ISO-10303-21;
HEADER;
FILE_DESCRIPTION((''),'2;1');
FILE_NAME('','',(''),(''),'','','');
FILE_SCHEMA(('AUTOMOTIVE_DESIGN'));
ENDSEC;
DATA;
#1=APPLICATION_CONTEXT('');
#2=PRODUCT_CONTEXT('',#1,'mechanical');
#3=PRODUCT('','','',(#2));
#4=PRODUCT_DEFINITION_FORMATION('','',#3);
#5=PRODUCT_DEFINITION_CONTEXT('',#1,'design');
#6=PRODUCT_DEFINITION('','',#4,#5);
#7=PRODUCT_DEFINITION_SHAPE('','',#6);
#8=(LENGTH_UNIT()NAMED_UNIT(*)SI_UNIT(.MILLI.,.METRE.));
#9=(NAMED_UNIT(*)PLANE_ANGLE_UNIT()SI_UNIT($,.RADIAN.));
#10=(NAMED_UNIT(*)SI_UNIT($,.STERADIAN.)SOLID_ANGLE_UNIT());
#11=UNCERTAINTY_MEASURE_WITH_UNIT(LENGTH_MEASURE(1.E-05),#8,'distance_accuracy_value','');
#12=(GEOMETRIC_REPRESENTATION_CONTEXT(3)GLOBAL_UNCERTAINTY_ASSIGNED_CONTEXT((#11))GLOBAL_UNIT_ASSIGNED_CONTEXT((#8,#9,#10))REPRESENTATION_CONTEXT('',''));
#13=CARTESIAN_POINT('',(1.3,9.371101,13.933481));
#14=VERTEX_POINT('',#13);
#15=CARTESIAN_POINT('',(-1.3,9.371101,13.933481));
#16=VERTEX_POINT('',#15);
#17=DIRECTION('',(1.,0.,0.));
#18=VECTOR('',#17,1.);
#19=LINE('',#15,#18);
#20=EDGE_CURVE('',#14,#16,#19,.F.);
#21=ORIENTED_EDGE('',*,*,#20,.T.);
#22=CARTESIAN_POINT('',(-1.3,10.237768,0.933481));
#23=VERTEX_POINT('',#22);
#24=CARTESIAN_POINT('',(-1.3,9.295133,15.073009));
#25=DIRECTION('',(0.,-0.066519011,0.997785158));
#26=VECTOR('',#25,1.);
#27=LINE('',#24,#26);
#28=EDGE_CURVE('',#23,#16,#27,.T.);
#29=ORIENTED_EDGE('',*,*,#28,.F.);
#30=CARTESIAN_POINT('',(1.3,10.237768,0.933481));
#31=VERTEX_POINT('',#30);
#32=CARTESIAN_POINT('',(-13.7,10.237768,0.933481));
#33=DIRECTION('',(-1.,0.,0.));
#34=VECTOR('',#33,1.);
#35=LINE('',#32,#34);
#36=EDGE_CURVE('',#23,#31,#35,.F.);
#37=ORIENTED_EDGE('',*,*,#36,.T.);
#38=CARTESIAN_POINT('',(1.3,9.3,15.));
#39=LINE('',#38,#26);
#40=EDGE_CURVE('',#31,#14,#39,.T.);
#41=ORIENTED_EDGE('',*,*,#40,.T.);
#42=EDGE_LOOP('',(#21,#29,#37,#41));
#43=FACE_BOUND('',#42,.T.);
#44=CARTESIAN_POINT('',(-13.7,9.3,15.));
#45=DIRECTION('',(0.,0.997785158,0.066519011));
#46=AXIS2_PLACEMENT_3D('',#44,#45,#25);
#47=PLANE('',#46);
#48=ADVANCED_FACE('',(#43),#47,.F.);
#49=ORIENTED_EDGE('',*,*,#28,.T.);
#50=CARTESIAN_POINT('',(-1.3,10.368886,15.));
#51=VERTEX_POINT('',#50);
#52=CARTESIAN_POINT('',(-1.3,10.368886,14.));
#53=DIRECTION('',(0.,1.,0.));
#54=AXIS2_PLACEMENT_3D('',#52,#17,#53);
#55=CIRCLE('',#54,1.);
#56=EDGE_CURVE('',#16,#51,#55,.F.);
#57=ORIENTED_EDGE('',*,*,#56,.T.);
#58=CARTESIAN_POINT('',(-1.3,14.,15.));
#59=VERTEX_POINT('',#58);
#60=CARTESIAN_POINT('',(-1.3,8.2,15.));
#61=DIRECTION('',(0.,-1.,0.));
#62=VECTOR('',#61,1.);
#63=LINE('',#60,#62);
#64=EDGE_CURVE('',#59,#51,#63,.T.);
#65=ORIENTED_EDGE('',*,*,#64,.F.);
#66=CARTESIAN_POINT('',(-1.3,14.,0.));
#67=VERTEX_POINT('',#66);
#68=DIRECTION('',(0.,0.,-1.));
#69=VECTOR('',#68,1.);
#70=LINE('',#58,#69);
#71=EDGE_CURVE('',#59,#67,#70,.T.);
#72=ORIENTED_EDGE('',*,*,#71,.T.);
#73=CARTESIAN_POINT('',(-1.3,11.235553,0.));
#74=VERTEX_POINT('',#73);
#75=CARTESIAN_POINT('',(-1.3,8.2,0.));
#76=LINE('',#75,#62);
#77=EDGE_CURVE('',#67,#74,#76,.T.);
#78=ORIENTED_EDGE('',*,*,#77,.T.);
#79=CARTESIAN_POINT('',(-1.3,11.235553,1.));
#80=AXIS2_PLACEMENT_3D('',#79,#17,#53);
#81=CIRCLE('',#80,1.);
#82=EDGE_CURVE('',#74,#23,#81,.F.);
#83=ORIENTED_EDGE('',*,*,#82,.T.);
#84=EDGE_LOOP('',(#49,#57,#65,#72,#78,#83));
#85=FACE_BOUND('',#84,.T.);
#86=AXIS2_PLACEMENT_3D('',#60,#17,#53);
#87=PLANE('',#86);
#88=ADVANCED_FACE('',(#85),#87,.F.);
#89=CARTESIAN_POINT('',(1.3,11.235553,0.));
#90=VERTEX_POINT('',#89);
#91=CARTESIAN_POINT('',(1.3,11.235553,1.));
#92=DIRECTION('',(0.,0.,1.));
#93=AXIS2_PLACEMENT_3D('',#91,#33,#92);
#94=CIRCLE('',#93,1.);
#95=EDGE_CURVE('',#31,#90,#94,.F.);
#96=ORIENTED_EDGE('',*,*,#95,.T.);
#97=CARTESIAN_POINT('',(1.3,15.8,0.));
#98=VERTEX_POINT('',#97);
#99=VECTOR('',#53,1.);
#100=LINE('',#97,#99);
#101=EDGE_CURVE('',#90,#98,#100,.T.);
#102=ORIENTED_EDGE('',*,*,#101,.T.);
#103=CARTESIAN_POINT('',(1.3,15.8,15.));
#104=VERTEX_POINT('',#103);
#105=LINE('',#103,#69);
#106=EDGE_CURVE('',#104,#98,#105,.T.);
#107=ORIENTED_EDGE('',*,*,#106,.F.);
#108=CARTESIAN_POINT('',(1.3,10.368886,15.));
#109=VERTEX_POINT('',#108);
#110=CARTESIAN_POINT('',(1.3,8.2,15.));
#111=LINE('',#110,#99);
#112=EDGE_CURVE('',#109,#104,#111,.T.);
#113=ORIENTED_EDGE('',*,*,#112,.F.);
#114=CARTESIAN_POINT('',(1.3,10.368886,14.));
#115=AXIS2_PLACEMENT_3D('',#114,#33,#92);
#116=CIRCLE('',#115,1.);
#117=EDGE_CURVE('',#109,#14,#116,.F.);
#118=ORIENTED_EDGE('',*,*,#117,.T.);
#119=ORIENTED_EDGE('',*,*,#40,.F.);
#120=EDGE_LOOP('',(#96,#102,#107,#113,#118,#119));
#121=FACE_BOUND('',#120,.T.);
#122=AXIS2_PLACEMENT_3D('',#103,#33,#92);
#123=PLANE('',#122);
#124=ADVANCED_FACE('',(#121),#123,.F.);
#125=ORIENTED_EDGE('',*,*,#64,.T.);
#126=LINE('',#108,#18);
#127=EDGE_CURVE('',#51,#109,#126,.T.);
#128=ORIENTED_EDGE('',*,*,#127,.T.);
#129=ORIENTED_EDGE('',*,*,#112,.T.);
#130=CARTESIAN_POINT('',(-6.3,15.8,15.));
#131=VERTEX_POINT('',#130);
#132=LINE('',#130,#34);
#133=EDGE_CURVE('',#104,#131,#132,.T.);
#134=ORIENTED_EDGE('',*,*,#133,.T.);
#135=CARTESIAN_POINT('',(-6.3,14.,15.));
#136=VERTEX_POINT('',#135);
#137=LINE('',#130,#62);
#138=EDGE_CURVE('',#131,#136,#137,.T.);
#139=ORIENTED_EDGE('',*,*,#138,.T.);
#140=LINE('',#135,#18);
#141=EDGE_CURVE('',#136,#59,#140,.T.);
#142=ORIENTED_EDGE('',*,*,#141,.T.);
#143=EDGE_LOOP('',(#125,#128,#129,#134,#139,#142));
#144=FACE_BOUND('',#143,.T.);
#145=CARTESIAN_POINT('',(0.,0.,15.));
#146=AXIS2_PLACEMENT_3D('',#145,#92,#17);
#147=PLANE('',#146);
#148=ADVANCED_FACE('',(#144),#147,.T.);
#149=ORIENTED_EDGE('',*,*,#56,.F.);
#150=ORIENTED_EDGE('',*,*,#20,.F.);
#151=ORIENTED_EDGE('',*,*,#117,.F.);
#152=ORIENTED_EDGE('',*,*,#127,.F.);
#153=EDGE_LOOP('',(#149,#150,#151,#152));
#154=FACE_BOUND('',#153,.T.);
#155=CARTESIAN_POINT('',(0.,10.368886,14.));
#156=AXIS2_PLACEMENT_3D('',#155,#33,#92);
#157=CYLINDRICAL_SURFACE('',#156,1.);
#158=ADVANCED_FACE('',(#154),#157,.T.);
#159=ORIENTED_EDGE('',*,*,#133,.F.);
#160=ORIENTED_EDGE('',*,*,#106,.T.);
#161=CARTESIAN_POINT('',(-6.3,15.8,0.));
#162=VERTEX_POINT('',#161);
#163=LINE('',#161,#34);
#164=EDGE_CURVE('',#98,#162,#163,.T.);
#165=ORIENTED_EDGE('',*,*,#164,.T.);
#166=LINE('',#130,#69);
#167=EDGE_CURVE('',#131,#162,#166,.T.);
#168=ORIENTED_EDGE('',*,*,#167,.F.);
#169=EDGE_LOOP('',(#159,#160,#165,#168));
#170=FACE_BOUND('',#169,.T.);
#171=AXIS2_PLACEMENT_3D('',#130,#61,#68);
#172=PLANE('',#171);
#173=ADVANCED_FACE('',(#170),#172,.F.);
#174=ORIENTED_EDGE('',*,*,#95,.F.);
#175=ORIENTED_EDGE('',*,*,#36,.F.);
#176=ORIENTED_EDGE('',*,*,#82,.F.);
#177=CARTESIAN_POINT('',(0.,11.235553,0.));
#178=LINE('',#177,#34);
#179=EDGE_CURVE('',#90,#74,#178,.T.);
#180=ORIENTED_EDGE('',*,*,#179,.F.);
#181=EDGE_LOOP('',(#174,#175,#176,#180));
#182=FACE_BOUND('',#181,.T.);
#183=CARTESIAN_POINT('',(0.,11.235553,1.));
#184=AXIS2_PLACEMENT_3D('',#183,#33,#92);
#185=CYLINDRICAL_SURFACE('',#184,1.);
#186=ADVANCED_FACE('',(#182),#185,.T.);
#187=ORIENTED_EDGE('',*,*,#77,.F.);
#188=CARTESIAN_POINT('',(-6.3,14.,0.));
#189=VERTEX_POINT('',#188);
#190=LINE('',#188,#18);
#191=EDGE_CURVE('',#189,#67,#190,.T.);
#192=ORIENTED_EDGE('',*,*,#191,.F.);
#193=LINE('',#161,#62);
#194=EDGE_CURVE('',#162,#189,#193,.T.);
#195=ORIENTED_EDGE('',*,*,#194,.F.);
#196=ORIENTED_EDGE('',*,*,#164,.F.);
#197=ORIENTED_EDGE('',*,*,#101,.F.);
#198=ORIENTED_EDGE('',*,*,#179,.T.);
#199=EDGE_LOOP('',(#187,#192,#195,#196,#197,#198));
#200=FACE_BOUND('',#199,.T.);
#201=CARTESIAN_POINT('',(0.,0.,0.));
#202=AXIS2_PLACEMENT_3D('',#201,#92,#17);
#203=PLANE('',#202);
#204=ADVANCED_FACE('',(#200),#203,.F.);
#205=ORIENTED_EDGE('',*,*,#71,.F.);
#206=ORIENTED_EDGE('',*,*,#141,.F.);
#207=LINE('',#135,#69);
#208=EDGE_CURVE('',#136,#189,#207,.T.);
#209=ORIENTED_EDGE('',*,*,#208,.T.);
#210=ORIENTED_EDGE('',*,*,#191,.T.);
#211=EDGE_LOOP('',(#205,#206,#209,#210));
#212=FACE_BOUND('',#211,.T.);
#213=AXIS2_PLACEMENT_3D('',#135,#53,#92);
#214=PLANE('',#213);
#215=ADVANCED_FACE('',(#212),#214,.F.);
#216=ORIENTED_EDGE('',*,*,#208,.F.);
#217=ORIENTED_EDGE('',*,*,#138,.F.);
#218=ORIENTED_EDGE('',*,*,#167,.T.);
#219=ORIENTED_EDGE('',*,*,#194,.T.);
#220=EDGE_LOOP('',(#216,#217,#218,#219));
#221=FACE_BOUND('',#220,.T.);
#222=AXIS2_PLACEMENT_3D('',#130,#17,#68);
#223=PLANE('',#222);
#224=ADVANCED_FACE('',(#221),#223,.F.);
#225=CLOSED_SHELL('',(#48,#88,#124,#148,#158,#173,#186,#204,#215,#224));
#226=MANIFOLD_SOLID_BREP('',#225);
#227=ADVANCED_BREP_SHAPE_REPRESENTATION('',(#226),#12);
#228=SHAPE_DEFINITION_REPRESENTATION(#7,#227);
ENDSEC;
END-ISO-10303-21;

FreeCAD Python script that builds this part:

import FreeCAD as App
import Part
import Sketcher
Q = App.Units.Quantity


def edges_at(feature, points):
    """Names of the edges that pass closest to the given points."""
    edges = feature.Shape.Edges
    near = lambda p: min(range(len(edges)), key=lambda i: edges[i].distToShape(Part.Vertex(*p))[0])
    return sorted({f"Edge{near(p) + 1}" for p in points})

doc = App.newDocument("Part")
body = doc.addObject("PartDesign::Body", "Body")

sketch1 = body.newObject("Sketcher::SketchObject", "Sketch")
sketch1.AttachmentSupport = (doc.getObject("XY_Plane"), [""])
sketch1.MapMode = "FlatFace"
sketch1.addGeometry(Part.LineSegment(App.Vector(1.3, 15.8, 0), App.Vector(-6.3, 15.8, 0)), False)
sketch1.addGeometry(Part.LineSegment(App.Vector(-6.3, 15.8, 0), App.Vector(-6.3, 14, 0)), False)
sketch1.addGeometry(Part.LineSegment(App.Vector(-6.3, 14, 0), App.Vector(-1.3, 14, 0)), False)
sketch1.addGeometry(Part.LineSegment(App.Vector(-1.3, 14, 0), App.Vector(-1.3, 8.2, 0)), False)
sketch1.addGeometry(Part.LineSegment(App.Vector(-1.3, 8.2, 0), App.Vector(1.3, 8.2, 0)), False)
sketch1.addGeometry(Part.LineSegment(App.Vector(1.3, 8.2, 0), App.Vector(1.3, 15.8, 0)), False)
sketch1.addConstraint(Sketcher.Constraint("Coincident", 0, 2, 1, 1))
sketch1.addConstraint(Sketcher.Constraint("Coincident", 1, 2, 2, 1))
sketch1.addConstraint(Sketcher.Constraint("Coincident", 2, 2, 3, 1))
sketch1.addConstraint(Sketcher.Constraint("Coincident", 3, 2, 4, 1))
sketch1.addConstraint(Sketcher.Constraint("Coincident", 4, 2, 5, 1))
sketch1.addConstraint(Sketcher.Constraint("Coincident", 5, 2, 0, 1))
sketch1.addConstraint(Sketcher.Constraint("Horizontal", 0))
sketch1.addConstraint(Sketcher.Constraint("Vertical", 1))
sketch1.addConstraint(Sketcher.Constraint("Horizontal", 2))
sketch1.addConstraint(Sketcher.Constraint("Vertical", 3))
sketch1.addConstraint(Sketcher.Constraint("Horizontal", 4))
sketch1.addConstraint(Sketcher.Constraint("Vertical", 5))
sketch1.addConstraint(Sketcher.Constraint("Equal", 0, 5))
sketch1.addConstraint(Sketcher.Constraint("DistanceX", 2, 1, 2, 2, Q("5 mm")))
sketch1.addConstraint(Sketcher.Constraint("DistanceX", 0, 2, 0, 1, Q("7.6 mm")))
sketch1.addConstraint(Sketcher.Constraint("DistanceY", 1, 2, 1, 1, Q("1.8 mm")))
sketch1.addConstraint(Sketcher.Constraint("DistanceY", -1, 1, 1, 2, Q("14 mm")))
sketch1.addConstraint(Sketcher.Constraint("DistanceX", 0, 2, -1, 1, Q("6.3 mm")))
pad1 = body.newObject("PartDesign::Pad", "Pad")
pad1.Profile = sketch1
pad1.Length = 15

sketch2 = body.newObject("Sketcher::SketchObject", "Sketch001")
sketch2.AttachmentSupport = (doc.getObject("YZ_Plane"), [""])
sketch2.MapMode = "FlatFace"
sketch2.AttachmentOffset = App.Placement(App.Vector(0, 0, 1.3), App.Rotation())
sketch2.addGeometry(Part.LineSegment(App.Vector(9.3, 15, 0), App.Vector(6.8, 15.9, 0)), False)
sketch2.addGeometry(Part.LineSegment(App.Vector(6.8, 15.9, 0), App.Vector(7.1, -2.1, 0)), False)
sketch2.addGeometry(Part.LineSegment(App.Vector(7.1, -2.1, 0), App.Vector(10.3, 0, 0)), False)
sketch2.addGeometry(Part.LineSegment(App.Vector(10.3, 0, 0), App.Vector(9.3, 15, 0)), False)
sketch2.addConstraint(Sketcher.Constraint("Coincident", 0, 2, 1, 1))
sketch2.addConstraint(Sketcher.Constraint("Coincident", 1, 2, 2, 1))
sketch2.addConstraint(Sketcher.Constraint("Coincident", 2, 2, 3, 1))
sketch2.addConstraint(Sketcher.Constraint("Coincident", 3, 2, 0, 1))
sketch2.addConstraint(Sketcher.Constraint("PointOnObject", 2, 2, -1))
sketch2.addConstraint(Sketcher.Constraint("DistanceY", -1, 1, 3, 2, Q("15 mm")))
sketch2.addConstraint(Sketcher.Constraint("DistanceX", 3, 2, 2, 2, Q("1 mm")))
sketch2.addConstraint(Sketcher.Constraint("DistanceX", -1, 1, 2, 2, Q("10.3 mm")))
sketch2.addConstraint(Sketcher.Constraint("DistanceX", 0, 2, 1, 2, Q("0.222102 mm")))
sketch2.addConstraint(Sketcher.Constraint("Distance", 0, Q("2.61405 mm")))
sketch2.addConstraint(Sketcher.Constraint("Distance", 2, Q("3.857189 mm")))
sketch2.addConstraint(Sketcher.Constraint("Distance", 1, Q("17.991604 mm")))
pocket1 = body.newObject("PartDesign::Pocket", "Pocket")
pocket1.Profile = sketch2
pocket1.Length = 15
doc.recompute()

fillet = body.newObject("PartDesign::Fillet", "Fillet")
fillet.Base = (pocket1, edges_at(pocket1, [(0, 10.3, 0), (0, 9.3, 15)]))
fillet.Radius = 1

doc.recompute()
